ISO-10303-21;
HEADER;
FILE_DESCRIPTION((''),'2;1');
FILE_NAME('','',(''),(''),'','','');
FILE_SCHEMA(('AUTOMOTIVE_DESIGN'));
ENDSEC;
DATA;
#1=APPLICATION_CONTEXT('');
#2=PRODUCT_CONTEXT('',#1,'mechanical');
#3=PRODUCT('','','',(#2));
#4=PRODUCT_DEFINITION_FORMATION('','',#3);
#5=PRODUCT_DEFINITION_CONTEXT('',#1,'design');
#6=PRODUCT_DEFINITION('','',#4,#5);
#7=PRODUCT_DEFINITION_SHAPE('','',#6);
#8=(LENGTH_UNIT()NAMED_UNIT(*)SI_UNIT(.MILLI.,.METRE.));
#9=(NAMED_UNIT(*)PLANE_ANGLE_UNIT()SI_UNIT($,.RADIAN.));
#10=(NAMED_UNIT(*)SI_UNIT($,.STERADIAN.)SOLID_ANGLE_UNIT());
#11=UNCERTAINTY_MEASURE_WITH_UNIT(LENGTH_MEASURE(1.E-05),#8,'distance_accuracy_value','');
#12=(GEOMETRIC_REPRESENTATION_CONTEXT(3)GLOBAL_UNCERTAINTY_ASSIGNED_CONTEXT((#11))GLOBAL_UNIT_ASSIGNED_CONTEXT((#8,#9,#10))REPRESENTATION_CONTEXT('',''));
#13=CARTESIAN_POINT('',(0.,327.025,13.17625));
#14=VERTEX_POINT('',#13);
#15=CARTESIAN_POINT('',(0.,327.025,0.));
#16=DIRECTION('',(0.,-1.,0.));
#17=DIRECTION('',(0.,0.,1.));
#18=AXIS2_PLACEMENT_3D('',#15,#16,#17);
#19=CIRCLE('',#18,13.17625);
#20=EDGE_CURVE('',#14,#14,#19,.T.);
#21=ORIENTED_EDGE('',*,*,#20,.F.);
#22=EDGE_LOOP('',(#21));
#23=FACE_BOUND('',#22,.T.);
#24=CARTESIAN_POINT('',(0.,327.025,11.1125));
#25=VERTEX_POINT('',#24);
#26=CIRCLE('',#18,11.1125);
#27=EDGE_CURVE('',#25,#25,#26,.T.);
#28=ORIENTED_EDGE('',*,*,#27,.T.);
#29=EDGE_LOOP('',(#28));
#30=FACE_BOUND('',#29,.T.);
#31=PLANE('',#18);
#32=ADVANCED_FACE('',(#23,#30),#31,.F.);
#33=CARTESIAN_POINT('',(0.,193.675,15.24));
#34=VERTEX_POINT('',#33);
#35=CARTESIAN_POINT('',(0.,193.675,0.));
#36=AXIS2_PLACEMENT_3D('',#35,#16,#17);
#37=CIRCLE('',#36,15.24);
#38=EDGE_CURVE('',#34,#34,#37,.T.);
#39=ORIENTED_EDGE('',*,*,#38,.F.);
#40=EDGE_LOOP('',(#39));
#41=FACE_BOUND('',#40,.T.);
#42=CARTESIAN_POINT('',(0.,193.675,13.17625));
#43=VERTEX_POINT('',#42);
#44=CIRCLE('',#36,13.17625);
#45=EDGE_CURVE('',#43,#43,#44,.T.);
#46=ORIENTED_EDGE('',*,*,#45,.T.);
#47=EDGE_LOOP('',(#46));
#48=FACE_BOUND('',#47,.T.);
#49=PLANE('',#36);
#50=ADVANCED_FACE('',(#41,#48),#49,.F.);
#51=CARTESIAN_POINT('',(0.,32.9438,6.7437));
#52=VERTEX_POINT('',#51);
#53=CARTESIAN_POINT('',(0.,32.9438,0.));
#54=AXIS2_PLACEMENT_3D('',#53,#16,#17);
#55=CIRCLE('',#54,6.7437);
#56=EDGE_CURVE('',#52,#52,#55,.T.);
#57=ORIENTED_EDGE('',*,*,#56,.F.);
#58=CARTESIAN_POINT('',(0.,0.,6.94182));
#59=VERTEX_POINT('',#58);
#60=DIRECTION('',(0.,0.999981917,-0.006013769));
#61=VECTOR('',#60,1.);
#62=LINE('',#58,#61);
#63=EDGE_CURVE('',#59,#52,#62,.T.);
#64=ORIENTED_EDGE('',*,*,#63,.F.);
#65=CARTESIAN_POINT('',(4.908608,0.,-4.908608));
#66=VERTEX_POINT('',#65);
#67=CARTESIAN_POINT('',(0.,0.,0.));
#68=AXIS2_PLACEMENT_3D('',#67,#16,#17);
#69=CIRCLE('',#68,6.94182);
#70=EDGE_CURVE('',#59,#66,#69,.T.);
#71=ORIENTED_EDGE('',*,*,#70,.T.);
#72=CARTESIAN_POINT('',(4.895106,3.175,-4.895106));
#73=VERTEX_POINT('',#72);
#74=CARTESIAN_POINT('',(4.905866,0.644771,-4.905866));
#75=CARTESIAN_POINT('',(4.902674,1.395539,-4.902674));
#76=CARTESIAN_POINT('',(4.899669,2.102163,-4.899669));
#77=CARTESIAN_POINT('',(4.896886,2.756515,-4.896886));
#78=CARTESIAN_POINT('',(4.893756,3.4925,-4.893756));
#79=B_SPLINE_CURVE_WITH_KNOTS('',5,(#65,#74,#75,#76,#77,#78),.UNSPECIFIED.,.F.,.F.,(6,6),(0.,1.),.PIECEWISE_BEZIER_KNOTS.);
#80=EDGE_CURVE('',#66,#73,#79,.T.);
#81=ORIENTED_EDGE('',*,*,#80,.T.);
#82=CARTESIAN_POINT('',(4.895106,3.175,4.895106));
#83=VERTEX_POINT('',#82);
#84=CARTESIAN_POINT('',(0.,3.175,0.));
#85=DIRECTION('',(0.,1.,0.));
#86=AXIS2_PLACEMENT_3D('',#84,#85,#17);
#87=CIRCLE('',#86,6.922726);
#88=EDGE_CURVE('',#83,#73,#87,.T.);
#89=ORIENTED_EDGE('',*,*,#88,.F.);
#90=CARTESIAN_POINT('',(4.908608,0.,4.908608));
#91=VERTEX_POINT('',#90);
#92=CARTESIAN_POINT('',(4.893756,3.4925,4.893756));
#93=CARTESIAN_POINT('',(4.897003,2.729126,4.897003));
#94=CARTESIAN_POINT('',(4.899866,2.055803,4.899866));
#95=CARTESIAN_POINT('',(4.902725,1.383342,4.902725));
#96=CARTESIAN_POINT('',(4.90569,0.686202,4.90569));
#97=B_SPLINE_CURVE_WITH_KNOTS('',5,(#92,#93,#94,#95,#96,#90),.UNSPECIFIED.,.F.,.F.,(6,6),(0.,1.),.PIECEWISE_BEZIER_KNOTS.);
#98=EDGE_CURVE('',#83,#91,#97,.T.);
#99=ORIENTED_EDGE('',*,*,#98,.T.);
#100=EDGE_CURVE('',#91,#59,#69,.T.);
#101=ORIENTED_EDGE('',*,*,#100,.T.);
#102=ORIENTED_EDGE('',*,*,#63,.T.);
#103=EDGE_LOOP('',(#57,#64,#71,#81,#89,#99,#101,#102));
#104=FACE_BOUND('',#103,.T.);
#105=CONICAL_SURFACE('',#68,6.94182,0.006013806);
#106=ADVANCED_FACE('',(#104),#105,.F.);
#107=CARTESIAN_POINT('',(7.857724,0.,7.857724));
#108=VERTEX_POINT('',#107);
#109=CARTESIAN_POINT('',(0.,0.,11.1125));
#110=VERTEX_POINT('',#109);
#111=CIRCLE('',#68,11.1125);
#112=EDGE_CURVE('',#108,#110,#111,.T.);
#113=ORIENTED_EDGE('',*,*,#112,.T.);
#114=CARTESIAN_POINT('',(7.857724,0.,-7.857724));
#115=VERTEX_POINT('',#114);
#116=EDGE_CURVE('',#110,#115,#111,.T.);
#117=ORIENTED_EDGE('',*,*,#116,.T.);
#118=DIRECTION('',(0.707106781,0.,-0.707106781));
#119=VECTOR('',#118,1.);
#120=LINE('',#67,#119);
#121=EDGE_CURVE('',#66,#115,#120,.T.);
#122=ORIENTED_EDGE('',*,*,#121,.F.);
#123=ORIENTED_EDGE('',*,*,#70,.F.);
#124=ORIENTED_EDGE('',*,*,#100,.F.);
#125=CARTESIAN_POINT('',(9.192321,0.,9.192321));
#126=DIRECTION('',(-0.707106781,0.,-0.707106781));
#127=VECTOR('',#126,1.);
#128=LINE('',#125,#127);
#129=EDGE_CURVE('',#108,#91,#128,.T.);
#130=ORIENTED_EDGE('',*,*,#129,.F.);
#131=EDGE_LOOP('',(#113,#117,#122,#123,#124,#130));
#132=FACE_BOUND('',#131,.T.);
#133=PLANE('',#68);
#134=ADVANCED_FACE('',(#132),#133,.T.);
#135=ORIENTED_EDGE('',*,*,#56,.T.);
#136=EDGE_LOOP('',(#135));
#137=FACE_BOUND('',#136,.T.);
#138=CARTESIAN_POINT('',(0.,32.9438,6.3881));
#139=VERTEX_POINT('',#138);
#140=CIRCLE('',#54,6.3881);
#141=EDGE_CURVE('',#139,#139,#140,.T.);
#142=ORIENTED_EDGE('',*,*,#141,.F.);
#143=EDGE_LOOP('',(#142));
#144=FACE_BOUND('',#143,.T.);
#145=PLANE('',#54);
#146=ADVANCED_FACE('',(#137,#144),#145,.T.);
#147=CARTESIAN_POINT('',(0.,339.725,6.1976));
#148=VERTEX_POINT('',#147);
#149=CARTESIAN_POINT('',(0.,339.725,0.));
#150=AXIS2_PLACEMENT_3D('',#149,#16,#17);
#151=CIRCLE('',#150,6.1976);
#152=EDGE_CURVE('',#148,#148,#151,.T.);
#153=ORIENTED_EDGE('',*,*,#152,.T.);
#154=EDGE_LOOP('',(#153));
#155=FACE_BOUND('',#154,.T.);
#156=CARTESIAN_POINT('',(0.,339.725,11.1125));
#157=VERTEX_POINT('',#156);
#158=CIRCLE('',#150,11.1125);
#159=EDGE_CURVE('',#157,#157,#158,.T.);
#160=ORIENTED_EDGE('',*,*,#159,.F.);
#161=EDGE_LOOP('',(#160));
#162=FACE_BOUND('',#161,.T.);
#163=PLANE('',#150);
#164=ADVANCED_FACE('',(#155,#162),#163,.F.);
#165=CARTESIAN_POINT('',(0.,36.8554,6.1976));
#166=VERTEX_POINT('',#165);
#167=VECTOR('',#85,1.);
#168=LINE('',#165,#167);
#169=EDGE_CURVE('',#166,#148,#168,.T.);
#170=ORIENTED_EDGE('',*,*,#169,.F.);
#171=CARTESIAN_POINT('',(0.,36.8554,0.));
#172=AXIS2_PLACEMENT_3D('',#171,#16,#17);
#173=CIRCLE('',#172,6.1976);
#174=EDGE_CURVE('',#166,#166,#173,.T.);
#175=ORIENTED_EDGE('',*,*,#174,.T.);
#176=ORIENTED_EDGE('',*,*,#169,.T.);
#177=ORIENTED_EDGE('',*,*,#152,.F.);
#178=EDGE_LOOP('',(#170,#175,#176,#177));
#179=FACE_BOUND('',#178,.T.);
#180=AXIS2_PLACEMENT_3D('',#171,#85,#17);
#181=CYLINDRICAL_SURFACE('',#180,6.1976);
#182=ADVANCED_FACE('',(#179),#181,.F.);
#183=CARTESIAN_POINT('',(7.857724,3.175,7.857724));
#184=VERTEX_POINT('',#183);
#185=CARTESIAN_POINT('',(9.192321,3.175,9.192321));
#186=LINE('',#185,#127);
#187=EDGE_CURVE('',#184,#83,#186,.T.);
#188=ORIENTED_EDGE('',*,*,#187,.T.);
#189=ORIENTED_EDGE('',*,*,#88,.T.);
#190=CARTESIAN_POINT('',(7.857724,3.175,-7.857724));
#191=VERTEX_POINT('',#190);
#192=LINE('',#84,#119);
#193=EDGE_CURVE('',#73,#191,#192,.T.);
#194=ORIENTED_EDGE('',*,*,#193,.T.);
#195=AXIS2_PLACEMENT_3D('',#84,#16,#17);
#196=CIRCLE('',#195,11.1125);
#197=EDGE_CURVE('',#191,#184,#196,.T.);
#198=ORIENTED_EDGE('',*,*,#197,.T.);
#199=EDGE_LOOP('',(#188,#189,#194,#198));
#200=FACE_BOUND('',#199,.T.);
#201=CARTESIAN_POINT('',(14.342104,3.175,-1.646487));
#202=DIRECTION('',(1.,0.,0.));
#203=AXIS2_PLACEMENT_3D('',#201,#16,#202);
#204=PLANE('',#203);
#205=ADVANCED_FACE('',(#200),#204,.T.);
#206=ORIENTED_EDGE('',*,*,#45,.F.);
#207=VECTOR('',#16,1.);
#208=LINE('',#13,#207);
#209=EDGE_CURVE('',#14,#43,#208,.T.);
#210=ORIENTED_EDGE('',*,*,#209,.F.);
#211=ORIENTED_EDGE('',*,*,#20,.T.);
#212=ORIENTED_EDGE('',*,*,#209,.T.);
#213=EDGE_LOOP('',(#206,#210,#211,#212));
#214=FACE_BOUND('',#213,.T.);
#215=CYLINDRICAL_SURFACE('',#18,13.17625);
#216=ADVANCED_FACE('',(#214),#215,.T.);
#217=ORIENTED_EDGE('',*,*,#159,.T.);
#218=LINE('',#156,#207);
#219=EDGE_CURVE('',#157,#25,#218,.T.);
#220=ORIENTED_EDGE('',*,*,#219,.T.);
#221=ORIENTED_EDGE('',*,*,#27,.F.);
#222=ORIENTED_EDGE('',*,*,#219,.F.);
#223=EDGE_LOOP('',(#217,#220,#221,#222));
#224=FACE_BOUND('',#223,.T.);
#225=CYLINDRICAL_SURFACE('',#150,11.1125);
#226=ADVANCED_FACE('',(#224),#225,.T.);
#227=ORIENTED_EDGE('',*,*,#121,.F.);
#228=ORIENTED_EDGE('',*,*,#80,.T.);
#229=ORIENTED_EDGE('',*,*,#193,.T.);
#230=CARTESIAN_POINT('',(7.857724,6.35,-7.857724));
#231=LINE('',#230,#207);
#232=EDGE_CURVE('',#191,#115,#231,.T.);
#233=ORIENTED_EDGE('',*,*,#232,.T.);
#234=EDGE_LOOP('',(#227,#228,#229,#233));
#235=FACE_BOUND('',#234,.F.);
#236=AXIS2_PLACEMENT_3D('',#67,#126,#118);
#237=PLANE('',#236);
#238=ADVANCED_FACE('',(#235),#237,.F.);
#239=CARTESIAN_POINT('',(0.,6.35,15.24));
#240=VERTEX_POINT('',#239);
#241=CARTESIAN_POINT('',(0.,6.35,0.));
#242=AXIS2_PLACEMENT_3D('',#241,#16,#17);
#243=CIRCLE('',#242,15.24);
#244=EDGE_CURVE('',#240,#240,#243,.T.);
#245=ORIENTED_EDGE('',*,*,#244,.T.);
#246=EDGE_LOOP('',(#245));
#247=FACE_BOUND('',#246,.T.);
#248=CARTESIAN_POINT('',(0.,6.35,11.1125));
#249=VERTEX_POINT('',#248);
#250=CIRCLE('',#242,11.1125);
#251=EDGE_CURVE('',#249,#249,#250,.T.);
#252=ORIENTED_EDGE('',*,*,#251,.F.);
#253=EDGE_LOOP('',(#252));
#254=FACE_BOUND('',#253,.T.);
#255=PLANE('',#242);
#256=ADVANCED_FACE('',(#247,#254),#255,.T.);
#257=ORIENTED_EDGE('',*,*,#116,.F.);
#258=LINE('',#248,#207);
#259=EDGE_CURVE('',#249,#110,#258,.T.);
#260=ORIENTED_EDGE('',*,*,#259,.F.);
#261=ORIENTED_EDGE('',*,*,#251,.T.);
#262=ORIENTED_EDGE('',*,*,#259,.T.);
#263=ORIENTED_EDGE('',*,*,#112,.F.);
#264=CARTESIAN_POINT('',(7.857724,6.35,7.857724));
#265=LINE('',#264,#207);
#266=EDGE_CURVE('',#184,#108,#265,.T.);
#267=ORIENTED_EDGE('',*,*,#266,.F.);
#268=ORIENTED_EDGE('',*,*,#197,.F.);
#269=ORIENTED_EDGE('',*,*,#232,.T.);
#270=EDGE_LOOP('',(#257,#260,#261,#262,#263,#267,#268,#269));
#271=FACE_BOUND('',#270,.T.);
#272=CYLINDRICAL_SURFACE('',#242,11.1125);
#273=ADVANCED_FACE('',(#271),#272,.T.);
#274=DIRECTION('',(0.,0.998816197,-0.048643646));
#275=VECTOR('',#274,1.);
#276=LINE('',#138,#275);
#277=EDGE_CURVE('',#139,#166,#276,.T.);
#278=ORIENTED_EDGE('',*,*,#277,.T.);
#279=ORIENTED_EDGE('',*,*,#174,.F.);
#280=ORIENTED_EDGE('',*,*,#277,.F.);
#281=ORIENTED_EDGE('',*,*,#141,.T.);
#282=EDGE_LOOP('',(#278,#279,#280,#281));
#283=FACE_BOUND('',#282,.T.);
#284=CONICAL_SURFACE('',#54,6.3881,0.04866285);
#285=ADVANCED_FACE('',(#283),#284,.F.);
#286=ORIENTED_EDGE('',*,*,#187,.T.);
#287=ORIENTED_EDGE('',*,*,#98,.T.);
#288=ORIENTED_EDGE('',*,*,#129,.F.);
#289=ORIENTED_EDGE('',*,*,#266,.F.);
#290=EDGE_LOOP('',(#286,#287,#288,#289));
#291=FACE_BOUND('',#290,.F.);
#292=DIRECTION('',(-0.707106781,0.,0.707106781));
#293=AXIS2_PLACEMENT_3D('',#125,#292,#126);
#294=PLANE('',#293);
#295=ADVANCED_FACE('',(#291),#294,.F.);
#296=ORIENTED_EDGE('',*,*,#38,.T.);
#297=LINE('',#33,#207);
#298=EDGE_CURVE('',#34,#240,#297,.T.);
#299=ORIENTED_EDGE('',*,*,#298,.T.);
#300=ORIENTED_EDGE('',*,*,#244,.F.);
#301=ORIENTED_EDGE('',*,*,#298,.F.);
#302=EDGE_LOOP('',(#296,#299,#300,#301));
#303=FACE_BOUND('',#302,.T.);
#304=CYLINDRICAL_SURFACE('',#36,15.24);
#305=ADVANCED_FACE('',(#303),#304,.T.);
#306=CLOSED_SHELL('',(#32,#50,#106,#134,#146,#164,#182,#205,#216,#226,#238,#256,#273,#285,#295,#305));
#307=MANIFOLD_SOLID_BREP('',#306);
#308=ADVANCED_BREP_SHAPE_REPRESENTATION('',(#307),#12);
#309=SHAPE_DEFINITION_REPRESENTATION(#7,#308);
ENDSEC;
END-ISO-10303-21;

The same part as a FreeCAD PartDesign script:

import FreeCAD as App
import Part
import Sketcher
from FreeCAD import Vector
Q = App.Units.Quantity


def add_polygon(sketch, points):
    """Adds a closed chain of lines whose ends are joined by coincident constraints."""
    first, n = sketch.GeometryCount, len(points)
    for a, b in zip(points, points[1:] + points[:1]):
        sketch.addGeometry(Part.LineSegment(App.Vector(*a, 0), App.Vector(*b, 0)), False)
    for i in range(n):
        sketch.addConstraint(Sketcher.Constraint("Coincident", first + i, 2, first + (i + 1) % n, 1))

doc = App.newDocument("Part")
body = doc.addObject("PartDesign::Body", "Body")

# Sketch on YZ plane
sketch1 = body.newObject("Sketcher::SketchObject", "Sketch")
sketch1.AttachmentSupport = (doc.getObject("YZ_Plane"), [""])
sketch1.MapMode = "FlatFace"
add_polygon(sketch1, [(0, 11.11), (0, 6.94), (32.94, 6.74), (32.94, 6.39), (36.86, 6.2), (339.73, 6.2), (339.73, 11.11), (327.02, 11.11), (327.02, 13.18), (193.68, 13.18), (193.68, 15.24), (6.35, 15.24), (6.35, 11.11)])  # lines 0-12
sketch1.addConstraint([
    Sketcher.Constraint("Vertical", 0),
    Sketcher.Constraint("Vertical", 2),
    Sketcher.Constraint("Horizontal", 4),
    Sketcher.Constraint("Vertical", 5),
    Sketcher.Constraint("Horizontal", 6),
    Sketcher.Constraint("Vertical", 7),
    Sketcher.Constraint("Horizontal", 8),
    Sketcher.Constraint("Vertical", 9),
    Sketcher.Constraint("Horizontal", 10),
    Sketcher.Constraint("Vertical", 11),
    Sketcher.Constraint("Horizontal", 12),
    Sketcher.Constraint("PointOnObject", 0, 2, -2),
    Sketcher.Constraint("Horizontal", 6, 2, 11, 2),
    Sketcher.Constraint("Equal", 7, 9),
    Sketcher.Constraint("DistanceX", 6, 2, 6, 1, Q("0.5 in")),
    Sketcher.Constraint("DistanceX", 8, 2, 8, 1, Q("5.25 in")),
    Sketcher.Constraint("DistanceX", 12, 2, 12, 1, Q("0.25 in")),
    Sketcher.Constraint("DistanceY", -1, 1, 9, 2, Q("0.6 in")),
    Sketcher.Constraint("DistanceX", 4, 1, 4, 2, Q("11.924 in")),
    Sketcher.Constraint("DistanceX", 10, 2, 10, 1, Q("7.375 in")),
    Sketcher.Constraint("DistanceY", 2, 2, 2, 1, Q("0.014 in")),
    Sketcher.Constraint("DistanceY", 0, 2, 0, 1, Q("0.1642 in")),
    Sketcher.Constraint("DistanceY", 5, 1, 5, 2, Q("0.1935 in")),
    Sketcher.Constraint("DistanceY", 11, 2, 11, 1, Q("0.1625 in")),
    Sketcher.Constraint("DistanceX", -1, 1, 1, 2, Q("1.297 in")),
    Sketcher.Constraint("DistanceY", 1, 2, 5, 2, Q("0.172 in")),
])
revolution = body.newObject("PartDesign::Revolution", "Revolution")
revolution.Profile = sketch1
revolution.ReferenceAxis = (sketch1, ["H_Axis"])
revolution.Angle = 360

# Sketch on XY plane
sketch2 = body.newObject("Sketcher::SketchObject", "Sketch001")
sketch2.AttachmentSupport = (doc.getObject("XY_Plane"), [""])
sketch2.MapMode = "FlatFace"
sketch2.addGeometry(Part.Circle(Vector(0, 355.6, 0), Vector(0, 0, 1), 1.6), False)
sketch2.addConstraint([
    Sketcher.Constraint("PointOnObject", 0, 3, -2),
    Sketcher.Constraint("Diameter", 0, Q("0.125 in")),
    Sketcher.Constraint("DistanceY", -1, 1, 0, 3, Q("14 in")),
])
pocket1 = body.newObject("PartDesign::Pocket", "Pocket")
pocket1.Profile = sketch2
pocket1.Length = Q("1 in")
pocket1.Reversed = True

# Sketch on XZ plane
sketch3 = body.newObject("Sketcher::SketchObject", "Sketch002")
sketch3.AttachmentSupport = (doc.getObject("XZ_Plane"), [""])
sketch3.MapMode = "FlatFace"
add_polygon(sketch3, [(9, 9), (0, 0), (14, -14), (23, -14), (23, 10)])  # lines 0-4
sketch3.addConstraint([
    Sketcher.Constraint("Horizontal", 2),
    Sketcher.Constraint("Vertical", 3),
    Sketcher.Constraint("Coincident", 0, 2, -1, 1),
    Sketcher.Constraint("Perpendicular", 0, 1),
    Sketcher.Constraint("Angle", 0, Q("-135 deg")),
    Sketcher.Constraint("Distance", 1, 20.023151),
    Sketcher.Constraint("Distance", 4, 13.919639),
    Sketcher.Constraint("DistanceX", 2, 1, 2, 2, 8.945978),
    Sketcher.Constraint("DistanceY", 3, 1, 3, 2, 23.806963),
])
pocket2 = body.newObject("PartDesign::Pocket", "Pocket001")
pocket2.Profile = sketch3
pocket2.Length = Q("0.125 in")

doc.recompute()
